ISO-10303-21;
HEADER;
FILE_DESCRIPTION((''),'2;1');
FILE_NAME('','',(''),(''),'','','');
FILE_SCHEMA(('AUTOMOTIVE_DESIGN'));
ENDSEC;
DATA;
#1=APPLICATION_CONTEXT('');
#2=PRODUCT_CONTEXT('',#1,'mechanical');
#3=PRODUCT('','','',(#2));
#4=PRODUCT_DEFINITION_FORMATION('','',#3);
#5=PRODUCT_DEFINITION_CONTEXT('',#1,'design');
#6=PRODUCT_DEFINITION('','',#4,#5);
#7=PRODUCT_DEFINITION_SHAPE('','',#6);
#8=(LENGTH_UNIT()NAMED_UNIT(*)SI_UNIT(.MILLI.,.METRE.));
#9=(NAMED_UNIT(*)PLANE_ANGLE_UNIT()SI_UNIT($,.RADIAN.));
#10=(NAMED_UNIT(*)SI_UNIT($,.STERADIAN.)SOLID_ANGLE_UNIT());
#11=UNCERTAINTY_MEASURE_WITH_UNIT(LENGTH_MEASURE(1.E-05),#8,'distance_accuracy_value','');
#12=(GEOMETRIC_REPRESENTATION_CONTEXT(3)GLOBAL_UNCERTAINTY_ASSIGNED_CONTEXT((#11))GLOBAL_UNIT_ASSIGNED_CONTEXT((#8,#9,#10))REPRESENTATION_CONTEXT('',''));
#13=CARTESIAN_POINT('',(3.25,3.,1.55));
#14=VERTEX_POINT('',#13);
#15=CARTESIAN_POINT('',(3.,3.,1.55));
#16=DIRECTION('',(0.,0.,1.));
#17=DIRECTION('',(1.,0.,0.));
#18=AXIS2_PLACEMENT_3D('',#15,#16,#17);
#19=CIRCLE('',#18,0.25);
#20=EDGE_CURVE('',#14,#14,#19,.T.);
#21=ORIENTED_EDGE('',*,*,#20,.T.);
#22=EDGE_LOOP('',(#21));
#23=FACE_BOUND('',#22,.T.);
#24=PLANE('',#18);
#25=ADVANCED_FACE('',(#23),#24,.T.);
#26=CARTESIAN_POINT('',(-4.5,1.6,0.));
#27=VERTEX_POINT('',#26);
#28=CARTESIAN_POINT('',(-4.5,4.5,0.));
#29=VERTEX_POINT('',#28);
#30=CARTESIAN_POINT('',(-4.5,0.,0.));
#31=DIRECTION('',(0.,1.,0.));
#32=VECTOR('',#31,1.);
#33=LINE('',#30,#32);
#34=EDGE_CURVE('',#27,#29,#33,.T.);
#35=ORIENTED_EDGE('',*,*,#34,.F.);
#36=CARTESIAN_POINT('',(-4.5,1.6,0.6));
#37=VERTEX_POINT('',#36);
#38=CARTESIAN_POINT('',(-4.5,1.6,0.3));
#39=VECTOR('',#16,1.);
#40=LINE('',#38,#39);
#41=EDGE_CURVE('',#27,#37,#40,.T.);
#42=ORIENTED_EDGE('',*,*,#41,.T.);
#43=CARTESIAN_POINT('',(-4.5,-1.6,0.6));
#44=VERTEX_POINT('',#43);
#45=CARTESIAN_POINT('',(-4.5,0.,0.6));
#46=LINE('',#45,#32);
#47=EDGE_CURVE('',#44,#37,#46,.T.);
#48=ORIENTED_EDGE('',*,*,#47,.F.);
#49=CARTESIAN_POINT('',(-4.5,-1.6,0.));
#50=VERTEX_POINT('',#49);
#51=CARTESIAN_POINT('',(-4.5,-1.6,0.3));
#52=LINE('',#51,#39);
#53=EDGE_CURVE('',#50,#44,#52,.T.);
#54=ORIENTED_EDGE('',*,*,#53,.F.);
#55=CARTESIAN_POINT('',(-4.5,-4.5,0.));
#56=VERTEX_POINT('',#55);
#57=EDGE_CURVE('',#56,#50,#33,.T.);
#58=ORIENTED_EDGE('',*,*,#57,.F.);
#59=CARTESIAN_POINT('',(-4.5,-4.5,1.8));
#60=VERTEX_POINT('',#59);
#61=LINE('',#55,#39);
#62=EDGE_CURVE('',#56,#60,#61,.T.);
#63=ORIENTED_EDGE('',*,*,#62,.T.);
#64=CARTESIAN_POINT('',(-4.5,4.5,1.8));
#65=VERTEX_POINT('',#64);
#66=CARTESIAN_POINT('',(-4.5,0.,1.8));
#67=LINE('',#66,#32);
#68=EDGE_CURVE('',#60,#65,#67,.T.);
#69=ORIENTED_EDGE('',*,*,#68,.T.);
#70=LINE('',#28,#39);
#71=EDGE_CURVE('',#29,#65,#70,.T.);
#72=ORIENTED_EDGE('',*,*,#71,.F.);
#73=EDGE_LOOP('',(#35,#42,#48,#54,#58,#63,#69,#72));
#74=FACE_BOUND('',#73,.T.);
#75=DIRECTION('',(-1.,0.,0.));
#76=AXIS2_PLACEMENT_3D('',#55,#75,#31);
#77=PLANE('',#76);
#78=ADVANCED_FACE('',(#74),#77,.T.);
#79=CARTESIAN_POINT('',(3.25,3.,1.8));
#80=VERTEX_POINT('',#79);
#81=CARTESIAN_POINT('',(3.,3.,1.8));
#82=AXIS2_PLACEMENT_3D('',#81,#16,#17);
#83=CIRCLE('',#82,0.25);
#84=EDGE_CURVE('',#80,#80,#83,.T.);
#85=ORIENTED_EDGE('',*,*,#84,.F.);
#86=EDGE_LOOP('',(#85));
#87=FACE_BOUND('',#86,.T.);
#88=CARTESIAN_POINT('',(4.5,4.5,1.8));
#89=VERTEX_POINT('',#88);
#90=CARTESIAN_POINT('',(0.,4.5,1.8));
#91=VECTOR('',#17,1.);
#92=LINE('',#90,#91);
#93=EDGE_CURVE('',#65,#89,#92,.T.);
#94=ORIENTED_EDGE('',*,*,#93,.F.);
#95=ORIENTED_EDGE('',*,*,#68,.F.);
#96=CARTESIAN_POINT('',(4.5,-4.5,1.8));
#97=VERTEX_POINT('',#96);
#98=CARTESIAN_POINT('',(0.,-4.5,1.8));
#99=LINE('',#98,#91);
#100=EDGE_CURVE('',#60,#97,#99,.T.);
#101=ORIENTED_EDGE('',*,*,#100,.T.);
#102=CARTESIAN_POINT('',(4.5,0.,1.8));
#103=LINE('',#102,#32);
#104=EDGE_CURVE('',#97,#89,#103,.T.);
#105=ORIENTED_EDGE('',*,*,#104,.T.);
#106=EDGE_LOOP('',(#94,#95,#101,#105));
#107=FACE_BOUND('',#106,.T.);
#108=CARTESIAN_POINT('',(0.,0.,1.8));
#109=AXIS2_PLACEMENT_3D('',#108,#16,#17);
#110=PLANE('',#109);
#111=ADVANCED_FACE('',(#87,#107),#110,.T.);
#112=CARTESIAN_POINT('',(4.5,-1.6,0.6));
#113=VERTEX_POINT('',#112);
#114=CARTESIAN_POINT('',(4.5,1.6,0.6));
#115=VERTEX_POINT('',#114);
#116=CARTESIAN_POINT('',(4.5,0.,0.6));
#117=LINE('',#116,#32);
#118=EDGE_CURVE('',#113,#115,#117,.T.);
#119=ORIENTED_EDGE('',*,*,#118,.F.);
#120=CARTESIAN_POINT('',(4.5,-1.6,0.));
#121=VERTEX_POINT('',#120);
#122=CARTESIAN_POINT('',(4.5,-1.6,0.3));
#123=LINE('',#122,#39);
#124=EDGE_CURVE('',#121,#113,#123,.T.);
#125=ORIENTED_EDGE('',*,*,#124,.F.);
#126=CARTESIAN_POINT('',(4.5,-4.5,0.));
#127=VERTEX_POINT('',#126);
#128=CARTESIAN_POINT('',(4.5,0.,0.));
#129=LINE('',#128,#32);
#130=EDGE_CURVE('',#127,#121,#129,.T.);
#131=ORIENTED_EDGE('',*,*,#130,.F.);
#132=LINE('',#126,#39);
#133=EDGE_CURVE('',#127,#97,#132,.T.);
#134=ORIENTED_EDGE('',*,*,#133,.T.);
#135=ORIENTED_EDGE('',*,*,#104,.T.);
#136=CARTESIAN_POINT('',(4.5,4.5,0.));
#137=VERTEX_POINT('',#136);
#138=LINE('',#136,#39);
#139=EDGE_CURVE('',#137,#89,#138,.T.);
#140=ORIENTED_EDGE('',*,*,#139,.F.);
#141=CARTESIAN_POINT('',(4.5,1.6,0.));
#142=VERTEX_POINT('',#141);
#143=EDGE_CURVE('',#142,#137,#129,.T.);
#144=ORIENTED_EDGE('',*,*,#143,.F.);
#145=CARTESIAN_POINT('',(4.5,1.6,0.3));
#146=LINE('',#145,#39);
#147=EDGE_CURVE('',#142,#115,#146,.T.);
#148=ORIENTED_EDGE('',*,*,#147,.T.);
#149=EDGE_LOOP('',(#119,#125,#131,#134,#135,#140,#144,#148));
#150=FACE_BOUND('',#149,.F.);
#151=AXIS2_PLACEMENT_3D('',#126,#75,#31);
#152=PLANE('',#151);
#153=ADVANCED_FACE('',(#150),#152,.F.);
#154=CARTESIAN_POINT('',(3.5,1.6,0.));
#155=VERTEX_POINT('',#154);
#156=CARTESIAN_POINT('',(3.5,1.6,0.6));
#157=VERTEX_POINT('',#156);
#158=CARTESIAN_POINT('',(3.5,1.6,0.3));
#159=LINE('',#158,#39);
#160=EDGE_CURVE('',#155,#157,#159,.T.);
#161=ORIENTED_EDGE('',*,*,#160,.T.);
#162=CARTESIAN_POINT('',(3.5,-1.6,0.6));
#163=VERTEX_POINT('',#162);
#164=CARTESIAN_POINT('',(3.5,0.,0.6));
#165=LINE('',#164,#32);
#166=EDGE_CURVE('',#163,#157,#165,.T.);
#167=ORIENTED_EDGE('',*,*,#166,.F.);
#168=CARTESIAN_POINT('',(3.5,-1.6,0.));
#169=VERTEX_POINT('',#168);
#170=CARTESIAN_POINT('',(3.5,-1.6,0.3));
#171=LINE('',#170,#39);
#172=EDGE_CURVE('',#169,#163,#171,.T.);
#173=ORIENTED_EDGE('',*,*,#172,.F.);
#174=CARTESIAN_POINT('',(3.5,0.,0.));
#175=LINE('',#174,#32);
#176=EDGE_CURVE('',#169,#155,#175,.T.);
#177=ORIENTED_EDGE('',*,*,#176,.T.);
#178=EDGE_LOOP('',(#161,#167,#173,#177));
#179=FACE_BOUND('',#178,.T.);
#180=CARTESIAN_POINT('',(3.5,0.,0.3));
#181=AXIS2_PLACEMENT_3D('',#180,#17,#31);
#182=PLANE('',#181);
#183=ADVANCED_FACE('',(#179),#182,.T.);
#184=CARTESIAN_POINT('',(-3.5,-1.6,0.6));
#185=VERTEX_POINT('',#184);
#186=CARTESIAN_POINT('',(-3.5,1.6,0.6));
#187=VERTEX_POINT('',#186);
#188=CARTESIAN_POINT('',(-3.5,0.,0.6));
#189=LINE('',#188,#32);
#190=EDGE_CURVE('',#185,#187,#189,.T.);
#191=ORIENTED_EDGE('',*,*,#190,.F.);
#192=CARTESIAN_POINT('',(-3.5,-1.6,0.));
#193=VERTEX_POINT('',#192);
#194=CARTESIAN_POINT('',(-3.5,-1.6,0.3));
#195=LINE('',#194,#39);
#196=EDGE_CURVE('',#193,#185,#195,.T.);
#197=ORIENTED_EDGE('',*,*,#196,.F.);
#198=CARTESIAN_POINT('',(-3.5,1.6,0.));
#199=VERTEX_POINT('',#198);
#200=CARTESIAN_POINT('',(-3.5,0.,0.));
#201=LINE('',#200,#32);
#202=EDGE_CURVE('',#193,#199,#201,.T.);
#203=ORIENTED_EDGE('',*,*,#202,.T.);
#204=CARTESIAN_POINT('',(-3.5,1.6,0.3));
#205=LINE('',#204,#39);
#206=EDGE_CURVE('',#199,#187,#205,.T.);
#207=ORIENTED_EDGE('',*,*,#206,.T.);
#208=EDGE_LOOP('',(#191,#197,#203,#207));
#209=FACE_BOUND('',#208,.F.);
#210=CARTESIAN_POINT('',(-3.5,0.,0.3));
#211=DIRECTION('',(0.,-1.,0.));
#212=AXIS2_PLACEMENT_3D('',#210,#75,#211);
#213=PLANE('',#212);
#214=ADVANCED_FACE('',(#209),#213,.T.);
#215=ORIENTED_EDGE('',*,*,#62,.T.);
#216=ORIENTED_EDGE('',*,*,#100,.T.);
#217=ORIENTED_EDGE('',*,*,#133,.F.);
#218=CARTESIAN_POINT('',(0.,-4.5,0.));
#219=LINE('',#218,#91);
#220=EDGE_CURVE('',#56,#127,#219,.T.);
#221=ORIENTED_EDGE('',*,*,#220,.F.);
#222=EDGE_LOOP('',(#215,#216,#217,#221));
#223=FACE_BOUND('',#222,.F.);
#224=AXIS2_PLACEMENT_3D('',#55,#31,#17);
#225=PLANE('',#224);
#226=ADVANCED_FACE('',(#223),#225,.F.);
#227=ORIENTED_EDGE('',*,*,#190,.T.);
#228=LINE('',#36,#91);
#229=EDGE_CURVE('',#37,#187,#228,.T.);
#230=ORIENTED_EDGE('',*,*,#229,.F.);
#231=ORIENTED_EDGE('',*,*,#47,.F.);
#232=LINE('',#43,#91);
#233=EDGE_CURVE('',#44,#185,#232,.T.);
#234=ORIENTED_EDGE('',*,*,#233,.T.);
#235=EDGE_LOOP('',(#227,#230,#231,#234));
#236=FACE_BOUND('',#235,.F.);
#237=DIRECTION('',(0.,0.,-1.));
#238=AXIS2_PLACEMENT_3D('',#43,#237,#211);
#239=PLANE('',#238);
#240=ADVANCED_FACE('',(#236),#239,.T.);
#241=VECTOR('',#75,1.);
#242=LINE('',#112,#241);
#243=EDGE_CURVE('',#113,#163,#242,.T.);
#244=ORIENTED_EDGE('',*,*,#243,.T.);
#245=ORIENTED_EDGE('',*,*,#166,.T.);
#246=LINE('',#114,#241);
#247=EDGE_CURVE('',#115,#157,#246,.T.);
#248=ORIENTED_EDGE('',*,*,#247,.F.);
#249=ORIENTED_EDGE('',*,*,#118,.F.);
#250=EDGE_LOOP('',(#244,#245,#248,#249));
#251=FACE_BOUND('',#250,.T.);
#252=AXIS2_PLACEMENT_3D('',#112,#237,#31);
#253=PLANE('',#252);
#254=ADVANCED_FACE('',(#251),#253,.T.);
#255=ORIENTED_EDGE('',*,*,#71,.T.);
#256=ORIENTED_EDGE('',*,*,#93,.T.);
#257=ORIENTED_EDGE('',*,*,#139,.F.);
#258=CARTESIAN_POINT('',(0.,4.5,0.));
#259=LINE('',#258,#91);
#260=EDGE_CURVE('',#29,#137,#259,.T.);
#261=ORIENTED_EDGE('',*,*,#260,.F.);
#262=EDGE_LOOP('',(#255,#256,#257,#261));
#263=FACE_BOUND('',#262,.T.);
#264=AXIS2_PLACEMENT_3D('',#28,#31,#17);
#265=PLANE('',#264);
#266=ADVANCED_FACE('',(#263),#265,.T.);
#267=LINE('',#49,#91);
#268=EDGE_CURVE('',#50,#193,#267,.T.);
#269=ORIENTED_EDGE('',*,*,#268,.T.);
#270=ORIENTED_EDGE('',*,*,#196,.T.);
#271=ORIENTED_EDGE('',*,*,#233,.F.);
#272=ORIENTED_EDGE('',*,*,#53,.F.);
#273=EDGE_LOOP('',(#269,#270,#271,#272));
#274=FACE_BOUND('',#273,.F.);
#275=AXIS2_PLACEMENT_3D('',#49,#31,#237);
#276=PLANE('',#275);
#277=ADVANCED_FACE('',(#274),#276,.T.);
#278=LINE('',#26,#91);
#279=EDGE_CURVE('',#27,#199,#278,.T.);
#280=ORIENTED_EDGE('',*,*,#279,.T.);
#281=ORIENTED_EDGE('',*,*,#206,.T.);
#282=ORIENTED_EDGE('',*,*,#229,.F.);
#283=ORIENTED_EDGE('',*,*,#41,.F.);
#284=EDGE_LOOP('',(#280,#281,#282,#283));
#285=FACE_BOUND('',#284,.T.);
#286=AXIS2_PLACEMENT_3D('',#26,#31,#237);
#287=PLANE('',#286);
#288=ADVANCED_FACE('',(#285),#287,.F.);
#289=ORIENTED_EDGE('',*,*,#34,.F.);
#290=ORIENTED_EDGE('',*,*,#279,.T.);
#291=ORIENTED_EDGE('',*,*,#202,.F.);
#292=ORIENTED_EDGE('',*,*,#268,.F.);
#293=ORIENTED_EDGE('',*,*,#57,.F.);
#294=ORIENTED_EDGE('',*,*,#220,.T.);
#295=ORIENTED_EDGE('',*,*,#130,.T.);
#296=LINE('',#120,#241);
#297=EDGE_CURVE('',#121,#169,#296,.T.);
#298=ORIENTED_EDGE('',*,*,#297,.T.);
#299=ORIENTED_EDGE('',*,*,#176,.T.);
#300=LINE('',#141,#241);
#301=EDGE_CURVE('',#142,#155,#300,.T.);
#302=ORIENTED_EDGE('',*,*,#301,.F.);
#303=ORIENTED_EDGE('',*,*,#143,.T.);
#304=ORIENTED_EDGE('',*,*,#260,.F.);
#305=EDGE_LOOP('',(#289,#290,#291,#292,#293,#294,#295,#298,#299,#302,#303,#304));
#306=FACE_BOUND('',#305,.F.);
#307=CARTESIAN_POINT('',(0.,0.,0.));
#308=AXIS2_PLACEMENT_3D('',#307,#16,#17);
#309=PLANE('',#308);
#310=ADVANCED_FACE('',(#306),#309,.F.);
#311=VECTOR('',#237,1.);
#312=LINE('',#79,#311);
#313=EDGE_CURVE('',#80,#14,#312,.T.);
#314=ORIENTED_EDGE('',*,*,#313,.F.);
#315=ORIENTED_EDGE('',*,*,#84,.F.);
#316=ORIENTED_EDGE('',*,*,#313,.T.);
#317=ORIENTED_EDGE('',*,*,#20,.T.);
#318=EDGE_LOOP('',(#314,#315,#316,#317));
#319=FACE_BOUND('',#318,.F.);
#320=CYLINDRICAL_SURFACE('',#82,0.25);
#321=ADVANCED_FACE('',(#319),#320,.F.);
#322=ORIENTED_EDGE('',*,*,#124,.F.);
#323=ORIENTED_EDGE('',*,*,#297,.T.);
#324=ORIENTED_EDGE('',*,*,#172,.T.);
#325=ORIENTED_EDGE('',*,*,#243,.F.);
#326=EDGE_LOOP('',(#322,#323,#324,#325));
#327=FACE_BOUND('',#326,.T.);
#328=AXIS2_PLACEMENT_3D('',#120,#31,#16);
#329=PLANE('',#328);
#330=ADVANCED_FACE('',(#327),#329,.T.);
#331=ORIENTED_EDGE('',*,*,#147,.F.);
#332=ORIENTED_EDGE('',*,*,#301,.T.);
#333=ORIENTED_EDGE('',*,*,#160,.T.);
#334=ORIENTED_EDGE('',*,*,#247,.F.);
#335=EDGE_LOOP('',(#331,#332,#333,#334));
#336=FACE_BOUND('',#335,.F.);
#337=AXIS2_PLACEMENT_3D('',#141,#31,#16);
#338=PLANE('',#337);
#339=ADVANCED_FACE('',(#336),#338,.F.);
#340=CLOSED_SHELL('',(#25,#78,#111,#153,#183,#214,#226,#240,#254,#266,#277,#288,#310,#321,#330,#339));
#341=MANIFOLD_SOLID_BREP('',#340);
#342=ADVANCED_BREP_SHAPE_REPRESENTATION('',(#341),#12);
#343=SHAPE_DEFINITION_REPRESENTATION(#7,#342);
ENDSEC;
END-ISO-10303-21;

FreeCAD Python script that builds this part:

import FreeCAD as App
import Part
import Sketcher
from FreeCAD import Vector


def add_polygon(sketch, points):
    """Adds a closed chain of lines whose ends are joined by coincident constraints."""
    first, n = sketch.GeometryCount, len(points)
    for a, b in zip(points, points[1:] + points[:1]):
        sketch.addGeometry(Part.LineSegment(App.Vector(*a, 0), App.Vector(*b, 0)), False)
    for i in range(n):
        sketch.addConstraint(Sketcher.Constraint("Coincident", first + i, 2, first + (i + 1) % n, 1))

doc = App.newDocument("Part")
body = doc.addObject("PartDesign::Body", "Body")

# Sketch on XY plane
sketch1 = body.newObject("Sketcher::SketchObject", "Sketch")
sketch1.AttachmentSupport = (doc.getObject("XY_Plane"), [""])
sketch1.MapMode = "FlatFace"
add_polygon(sketch1, [(-4, 4), (-4, -4), (4, -4), (4, 4)])  # lines 0-3
sketch1.addConstraint([
    Sketcher.Constraint("Vertical", 0),
    Sketcher.Constraint("Horizontal", 1),
    Sketcher.Constraint("Vertical", 2),
    Sketcher.Constraint("Horizontal", 3),
    Sketcher.Constraint("Symmetric", 0, 2, 2, 2, -1, 1),
    Sketcher.Constraint("Equal", 3, 0),
    Sketcher.Constraint("DistanceX", 1, 1, 1, 2, 9.0),
])
pad1 = body.newObject("PartDesign::Pad", "Pad")
pad1.Profile = sketch1
pad1.Length = 1.8

# Sketch on XY plane
sketch2 = body.newObject("Sketcher::SketchObject", "Sketch001")
sketch2.AttachmentSupport = (doc.getObject("XY_Plane"), [""])
sketch2.MapMode = "FlatFace"
sketch2.AttachmentOffset = App.Placement(Vector(0, 0, 1.8), App.Rotation())
sketch2.addGeometry(Part.Circle(Vector(3, 3, 0), Vector(0, 0, 1), 0.25), False)
sketch2.addConstraint([
    Sketcher.Constraint("Diameter", 0, 0.5),
    Sketcher.Constraint("DistanceX", -1, 1, 0, 3, 3.0),
    Sketcher.Constraint("DistanceY", -1, 1, 0, 3, 3.0),
])
pocket1 = body.newObject("PartDesign::Pocket", "Pocket")
pocket1.Profile = sketch2
pocket1.Length = 0.25

# Sketch on YZ plane
sketch3 = body.newObject("Sketcher::SketchObject", "Sketch002")
sketch3.AttachmentSupport = (doc.getObject("YZ_Plane"), [""])
sketch3.MapMode = "FlatFace"
sketch3.AttachmentOffset = App.Placement(Vector(0, 0, 4.5), App.Rotation())
add_polygon(sketch3, [(-1.6, 0.6), (-1.6, 0), (1.6, 0), (1.6, 0.6)])  # lines 0-3
sketch3.addConstraint([
    Sketcher.Constraint("Vertical", 0),
    Sketcher.Constraint("Horizontal", 1),
    Sketcher.Constraint("Vertical", 2),
    Sketcher.Constraint("Horizontal", 3),
    Sketcher.Constraint("Symmetric", 0, 2, 1, 2, -1, 1),
    Sketcher.Constraint("DistanceX", 1, 1, 1, 2, 3.2),
    Sketcher.Constraint("DistanceY", 0, 2, 0, 1, 0.6),
])
pocket2 = body.newObject("PartDesign::Pocket", "Pocket001")
pocket2.Profile = sketch3
pocket2.Length = 1
doc.recompute()

mirrored = body.newObject("PartDesign::Mirrored", "Mirrored")
mirrored.Originals = [pocket2]
mirrored.MirrorPlane = (doc.getObject("YZ_Plane"), [""])
body.Tip = mirrored

doc.recompute()
